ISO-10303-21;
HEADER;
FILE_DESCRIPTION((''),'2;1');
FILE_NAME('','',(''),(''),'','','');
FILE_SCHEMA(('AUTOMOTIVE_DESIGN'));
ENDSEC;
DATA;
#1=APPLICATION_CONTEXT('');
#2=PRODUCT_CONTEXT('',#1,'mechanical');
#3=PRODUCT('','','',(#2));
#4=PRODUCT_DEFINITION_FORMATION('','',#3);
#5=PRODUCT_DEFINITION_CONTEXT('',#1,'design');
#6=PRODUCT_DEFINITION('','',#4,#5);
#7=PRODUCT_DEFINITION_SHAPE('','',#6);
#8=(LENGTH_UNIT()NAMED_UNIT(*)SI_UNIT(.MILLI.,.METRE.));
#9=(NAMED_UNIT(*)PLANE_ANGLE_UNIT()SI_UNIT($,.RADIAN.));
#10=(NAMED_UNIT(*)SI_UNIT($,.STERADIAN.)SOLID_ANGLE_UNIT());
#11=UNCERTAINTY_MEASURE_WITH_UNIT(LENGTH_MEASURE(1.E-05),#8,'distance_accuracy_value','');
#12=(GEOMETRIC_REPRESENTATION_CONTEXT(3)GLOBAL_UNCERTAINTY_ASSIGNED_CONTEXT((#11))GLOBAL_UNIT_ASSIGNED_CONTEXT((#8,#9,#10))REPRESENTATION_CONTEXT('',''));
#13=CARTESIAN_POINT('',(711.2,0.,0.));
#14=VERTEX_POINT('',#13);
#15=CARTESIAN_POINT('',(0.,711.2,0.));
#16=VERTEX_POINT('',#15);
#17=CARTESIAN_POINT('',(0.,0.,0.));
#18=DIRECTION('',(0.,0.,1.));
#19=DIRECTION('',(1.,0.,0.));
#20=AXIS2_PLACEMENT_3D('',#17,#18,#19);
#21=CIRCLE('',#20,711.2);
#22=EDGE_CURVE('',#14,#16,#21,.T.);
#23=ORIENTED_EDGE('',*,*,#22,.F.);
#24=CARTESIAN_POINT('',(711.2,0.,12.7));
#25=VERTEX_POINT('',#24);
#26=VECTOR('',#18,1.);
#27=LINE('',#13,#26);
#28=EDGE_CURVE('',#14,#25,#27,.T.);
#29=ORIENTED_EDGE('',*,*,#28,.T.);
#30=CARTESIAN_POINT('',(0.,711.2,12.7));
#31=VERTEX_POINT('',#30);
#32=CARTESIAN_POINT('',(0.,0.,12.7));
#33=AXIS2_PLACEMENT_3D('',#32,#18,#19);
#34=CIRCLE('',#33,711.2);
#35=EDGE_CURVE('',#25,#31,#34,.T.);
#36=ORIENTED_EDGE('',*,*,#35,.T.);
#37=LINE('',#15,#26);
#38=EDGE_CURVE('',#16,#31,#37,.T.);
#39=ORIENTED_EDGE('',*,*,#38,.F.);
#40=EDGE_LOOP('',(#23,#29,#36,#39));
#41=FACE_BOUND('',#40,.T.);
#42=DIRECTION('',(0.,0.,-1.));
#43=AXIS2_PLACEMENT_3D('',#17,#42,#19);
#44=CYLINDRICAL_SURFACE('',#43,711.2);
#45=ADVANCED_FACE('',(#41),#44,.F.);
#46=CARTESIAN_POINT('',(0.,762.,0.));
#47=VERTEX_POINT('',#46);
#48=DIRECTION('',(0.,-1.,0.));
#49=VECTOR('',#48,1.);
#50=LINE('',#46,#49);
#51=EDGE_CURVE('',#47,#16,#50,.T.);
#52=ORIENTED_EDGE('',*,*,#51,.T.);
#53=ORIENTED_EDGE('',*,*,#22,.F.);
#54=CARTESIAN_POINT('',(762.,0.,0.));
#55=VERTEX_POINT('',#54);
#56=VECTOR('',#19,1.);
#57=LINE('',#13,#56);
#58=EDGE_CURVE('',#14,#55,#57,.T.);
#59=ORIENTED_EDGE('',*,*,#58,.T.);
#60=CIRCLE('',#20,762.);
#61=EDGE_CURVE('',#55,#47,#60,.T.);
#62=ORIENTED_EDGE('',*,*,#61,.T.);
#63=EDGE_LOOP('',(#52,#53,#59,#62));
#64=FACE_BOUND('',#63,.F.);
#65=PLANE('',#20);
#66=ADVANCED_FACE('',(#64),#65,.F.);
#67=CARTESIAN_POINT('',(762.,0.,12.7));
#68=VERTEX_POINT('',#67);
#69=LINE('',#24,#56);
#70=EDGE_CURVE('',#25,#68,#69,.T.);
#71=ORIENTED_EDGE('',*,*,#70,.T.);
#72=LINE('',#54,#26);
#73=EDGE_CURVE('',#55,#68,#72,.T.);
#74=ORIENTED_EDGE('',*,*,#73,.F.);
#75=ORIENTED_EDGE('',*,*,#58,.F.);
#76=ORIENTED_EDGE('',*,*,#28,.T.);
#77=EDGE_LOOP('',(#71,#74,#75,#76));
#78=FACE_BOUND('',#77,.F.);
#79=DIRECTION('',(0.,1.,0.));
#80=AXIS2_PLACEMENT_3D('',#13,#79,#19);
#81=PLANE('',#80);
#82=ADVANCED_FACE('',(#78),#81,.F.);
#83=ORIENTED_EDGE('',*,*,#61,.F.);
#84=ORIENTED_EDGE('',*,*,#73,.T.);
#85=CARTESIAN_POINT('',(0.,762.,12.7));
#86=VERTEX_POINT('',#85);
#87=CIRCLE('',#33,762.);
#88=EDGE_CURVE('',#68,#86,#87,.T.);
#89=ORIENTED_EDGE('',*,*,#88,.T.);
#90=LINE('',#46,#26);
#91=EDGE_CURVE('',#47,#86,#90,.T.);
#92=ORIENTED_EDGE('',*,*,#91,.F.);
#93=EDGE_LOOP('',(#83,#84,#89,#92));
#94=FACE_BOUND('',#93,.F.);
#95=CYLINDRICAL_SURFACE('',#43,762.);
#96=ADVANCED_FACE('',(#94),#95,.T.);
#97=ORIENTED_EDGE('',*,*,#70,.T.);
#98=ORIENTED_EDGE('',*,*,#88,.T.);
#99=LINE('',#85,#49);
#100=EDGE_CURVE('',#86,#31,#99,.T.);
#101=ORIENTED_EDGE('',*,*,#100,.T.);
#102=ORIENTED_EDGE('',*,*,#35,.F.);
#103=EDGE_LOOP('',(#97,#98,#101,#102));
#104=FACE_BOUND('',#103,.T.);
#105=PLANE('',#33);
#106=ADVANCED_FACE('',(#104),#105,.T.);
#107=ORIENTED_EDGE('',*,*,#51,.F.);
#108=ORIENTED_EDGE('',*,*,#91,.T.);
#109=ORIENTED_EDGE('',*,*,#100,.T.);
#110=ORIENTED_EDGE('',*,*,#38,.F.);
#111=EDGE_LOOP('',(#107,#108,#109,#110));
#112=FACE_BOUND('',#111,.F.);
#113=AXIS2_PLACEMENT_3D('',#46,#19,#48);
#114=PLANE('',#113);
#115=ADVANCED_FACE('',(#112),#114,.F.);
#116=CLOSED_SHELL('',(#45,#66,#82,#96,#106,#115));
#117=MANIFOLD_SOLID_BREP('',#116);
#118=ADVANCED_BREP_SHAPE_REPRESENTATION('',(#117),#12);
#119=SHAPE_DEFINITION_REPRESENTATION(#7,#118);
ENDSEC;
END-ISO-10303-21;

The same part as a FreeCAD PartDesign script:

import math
import FreeCAD as App
import Part
import Sketcher
Q = App.Units.Quantity

doc = App.newDocument("Part")
params = doc.addObject("Spreadsheet::Sheet", "Params")
for row, (alias, value) in enumerate([
    ("sketch1_radius", "30 in"),
    ("sketch1_width", "2 in"),
    ("pad1_length", "0.5 in"),
], start=1):
    params.set(f"A{row}", alias)
    params.set(f"B{row}", "=" + value)
    params.setAlias(f"B{row}", alias)

body = doc.addObject("PartDesign::Body", "Body")

# Sketch on XY plane
sketch1 = body.newObject("Sketcher::SketchObject", "Sketch")
sketch1.AttachmentSupport = (doc.getObject("XY_Plane"), [""])
sketch1.MapMode = "FlatFace"
sketch1.addGeometry([
    Part.LineSegment(App.Vector(711, 0, 0), App.Vector(762, 0, 0)),
    Part.ArcOfCircle(Part.Circle(App.Vector(0, 0, 0), App.Vector(0, 0, 1), 762), math.radians(0), math.radians(90)),
    Part.LineSegment(App.Vector(0, 762, 0), App.Vector(0, 711, 0)),
    Part.ArcOfCircle(Part.Circle(App.Vector(0, 0, 0), App.Vector(0, 0, 1), 711), math.radians(0), math.radians(90)),
], False)
sketch1.addConstraint([
    Sketcher.Constraint("Coincident", 0, 2, 1, 1),
    Sketcher.Constraint("Coincident", 1, 2, 2, 1),
    Sketcher.Constraint("Coincident", 2, 2, 3, 2),
    Sketcher.Constraint("Coincident", 3, 1, 0, 1),
    Sketcher.Constraint("Horizontal", 0),
    Sketcher.Constraint("Vertical", 2),
    Sketcher.Constraint("Coincident", 1, 3, -1, 1),
    Sketcher.Constraint("Coincident", 3, 3, -1, 1),
    Sketcher.Constraint("PointOnObject", 0, 2, -1),
    Sketcher.Constraint("PointOnObject", 2, 2, -2),
    Sketcher.Constraint("Radius", 1, Q("30 in")),
    Sketcher.Constraint("DistanceX", 0, 1, 0, 2, Q("2 in")),
])
sketch1.setExpression("Constraints[10]", "Params.sketch1_radius")
sketch1.setExpression("Constraints[11]", "Params.sketch1_width")
pad1 = body.newObject("PartDesign::Pad", "Pad")
pad1.Profile = sketch1
pad1.setExpression("Length", "Params.pad1_length")

doc.recompute()
